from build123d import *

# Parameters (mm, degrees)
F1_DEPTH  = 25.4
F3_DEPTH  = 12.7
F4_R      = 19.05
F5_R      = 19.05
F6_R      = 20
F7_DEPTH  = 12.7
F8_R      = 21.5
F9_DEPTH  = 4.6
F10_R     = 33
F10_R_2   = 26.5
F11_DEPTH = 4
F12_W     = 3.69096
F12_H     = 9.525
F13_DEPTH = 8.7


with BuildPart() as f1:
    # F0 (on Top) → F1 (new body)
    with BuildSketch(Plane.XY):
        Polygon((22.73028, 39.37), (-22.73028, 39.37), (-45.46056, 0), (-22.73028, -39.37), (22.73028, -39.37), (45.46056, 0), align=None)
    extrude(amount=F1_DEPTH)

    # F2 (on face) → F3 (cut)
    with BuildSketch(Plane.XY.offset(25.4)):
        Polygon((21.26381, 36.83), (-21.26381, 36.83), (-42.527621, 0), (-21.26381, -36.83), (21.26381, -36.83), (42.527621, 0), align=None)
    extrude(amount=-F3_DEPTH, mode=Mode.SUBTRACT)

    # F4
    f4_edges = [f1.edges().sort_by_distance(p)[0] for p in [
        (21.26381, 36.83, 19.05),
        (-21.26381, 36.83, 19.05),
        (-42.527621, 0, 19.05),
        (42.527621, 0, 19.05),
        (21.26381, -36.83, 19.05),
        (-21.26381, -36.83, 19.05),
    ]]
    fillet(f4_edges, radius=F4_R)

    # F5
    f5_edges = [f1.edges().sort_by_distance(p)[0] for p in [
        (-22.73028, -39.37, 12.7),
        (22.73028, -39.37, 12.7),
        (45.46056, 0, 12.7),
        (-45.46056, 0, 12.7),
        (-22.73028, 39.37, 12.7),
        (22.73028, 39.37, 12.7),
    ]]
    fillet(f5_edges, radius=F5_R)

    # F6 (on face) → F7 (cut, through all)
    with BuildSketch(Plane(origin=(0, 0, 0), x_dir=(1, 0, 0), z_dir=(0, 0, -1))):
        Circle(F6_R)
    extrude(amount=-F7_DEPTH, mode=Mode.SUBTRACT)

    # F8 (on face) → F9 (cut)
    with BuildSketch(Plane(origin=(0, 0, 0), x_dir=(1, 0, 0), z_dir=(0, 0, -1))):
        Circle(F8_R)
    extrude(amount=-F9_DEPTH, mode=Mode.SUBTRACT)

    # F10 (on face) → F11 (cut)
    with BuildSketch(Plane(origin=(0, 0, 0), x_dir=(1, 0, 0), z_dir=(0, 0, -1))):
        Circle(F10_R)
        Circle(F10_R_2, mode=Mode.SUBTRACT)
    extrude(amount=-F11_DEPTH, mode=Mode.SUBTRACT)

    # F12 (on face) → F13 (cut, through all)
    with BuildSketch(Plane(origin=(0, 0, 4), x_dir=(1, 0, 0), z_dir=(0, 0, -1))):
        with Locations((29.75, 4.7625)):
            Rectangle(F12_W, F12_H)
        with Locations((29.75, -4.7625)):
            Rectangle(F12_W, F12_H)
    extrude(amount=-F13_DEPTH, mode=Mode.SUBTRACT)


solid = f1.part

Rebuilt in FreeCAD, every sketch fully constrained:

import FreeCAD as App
import Part
import Sketcher
from FreeCAD import Vector
Q = App.Units.Quantity


def edges_at(feature, points):
    """Names of the edges that pass closest to the given points."""
    edges = feature.Shape.Edges
    near = lambda p: min(range(len(edges)), key=lambda i: edges[i].distToShape(Part.Vertex(*p))[0])
    return sorted({f"Edge{near(p) + 1}" for p in points})


def add_polygon(sketch, points):
    """Adds a closed chain of lines whose ends are joined by coincident constraints."""
    first, n = sketch.GeometryCount, len(points)
    for a, b in zip(points, points[1:] + points[:1]):
        sketch.addGeometry(Part.LineSegment(App.Vector(*a, 0), App.Vector(*b, 0)), False)
    for i in range(n):
        sketch.addConstraint(Sketcher.Constraint("Coincident", first + i, 2, first + (i + 1) % n, 1))

doc = App.newDocument("Part")
params = doc.addObject("Spreadsheet::Sheet", "Params")
for row, (alias, value) in enumerate([
    ("pad1_length", "25.4 mm"),
    ("pocket1_length", "12.7 mm"),
    ("fillet_radius", "19.05 mm"),
    ("fillet2_radius", "19.05 mm"),
    ("sketch3_diameter", "40 mm"),
    ("sketch4_diameter", "43 mm"),
    ("pocket3_length", "4.6 mm"),
    ("sketch5_diameter", "66 mm"),
    ("sketch5_diameter2", "53 mm"),
    ("pocket4_length", "4 mm"),
    ("sketch6_height", "19.05 mm"),
], start=1):
    params.set(f"A{row}", alias)
    params.set(f"B{row}", "=" + value)
    params.setAlias(f"B{row}", alias)

body = doc.addObject("PartDesign::Body", "Body")

sketch1 = doc.addObject("Sketcher::SketchObject", "Sketch")
body.addObject(sketch1)
sketch1.AttachmentSupport = (doc.XY_Plane, [""])
sketch1.MapMode = "FlatFace"
add_polygon(sketch1, [(23, 39), (-23, 39), (-45, 0), (-23, -39), (23, -39), (45, 0)])
sketch1.addConstraint(Sketcher.Constraint("Horizontal", 0))
sketch1.addConstraint(Sketcher.Constraint("Horizontal", 3))
sketch1.addConstraint(Sketcher.Constraint("Symmetric", 0, 2, 3, 2, -1, 1))
sketch1.addConstraint(Sketcher.Constraint("Symmetric", 1, 2, 4, 2, -1, 1))
sketch1.addConstraint(Sketcher.Constraint("PointOnObject", 1, 2, -1))
sketch1.addConstraint(Sketcher.Constraint("Parallel", 2, 5))
sketch1.addConstraint(Sketcher.Constraint("Vertical", 0, 2, 2, 2))
sketch1.addConstraint(Sketcher.Constraint("Angle", 1, Q("-120 deg")))
sketch1.addConstraint(Sketcher.Constraint("DistanceY", -1, 1, 0, 2, 39.37))
sketch1.addConstraint(Sketcher.Constraint("DistanceX", 0, 2, 0, 1, 45.46056))
pad1 = doc.addObject("PartDesign::Pad", "Pad")
body.addObject(pad1)
pad1.Profile = sketch1
pad1.setExpression("Length", "Params.pad1_length")

sketch2 = doc.addObject("Sketcher::SketchObject", "Sketch001")
body.addObject(sketch2)
sketch2.AttachmentSupport = (doc.XY_Plane, [""])
sketch2.MapMode = "FlatFace"
sketch2.AttachmentOffset = App.Placement(Vector(0, 0, 25.4), App.Rotation())
add_polygon(sketch2, [(21, 37), (-21, 37), (-43, 0), (-21, -37), (21, -37), (43, 0)])
sketch2.addConstraint(Sketcher.Constraint("Horizontal", 0))
sketch2.addConstraint(Sketcher.Constraint("Horizontal", 3))
sketch2.addConstraint(Sketcher.Constraint("Symmetric", 0, 2, 3, 2, -1, 1))
sketch2.addConstraint(Sketcher.Constraint("Symmetric", 1, 2, 4, 2, -1, 1))
sketch2.addConstraint(Sketcher.Constraint("PointOnObject", 1, 2, -1))
sketch2.addConstraint(Sketcher.Constraint("Parallel", 2, 5))
sketch2.addConstraint(Sketcher.Constraint("Vertical", 0, 2, 2, 2))
sketch2.addConstraint(Sketcher.Constraint("Angle", 1, Q("-120.000001 deg")))
sketch2.addConstraint(Sketcher.Constraint("DistanceY", -1, 1, 0, 2, 36.83))
sketch2.addConstraint(Sketcher.Constraint("DistanceX", 0, 2, 0, 1, 42.52762))
pocket1 = doc.addObject("PartDesign::Pocket", "Pocket")
body.addObject(pocket1)
pocket1.Profile = sketch2
pocket1.setExpression("Length", "Params.pocket1_length")
doc.recompute()

fillet = doc.addObject("PartDesign::Fillet", "Fillet")
body.addObject(fillet)
fillet.Base = (pocket1, edges_at(pocket1, [
    (21.264, 36.83, 19.05),
    (-21.264, 36.83, 19.05),
    (-42.528, 0, 19.05),
    (42.528, 0, 19.05),
    (21.264, -36.83, 19.05),
    (-21.264, -36.83, 19.05),
]))
fillet.setExpression("Radius", "Params.fillet_radius")
doc.recompute()

fillet2 = doc.addObject("PartDesign::Fillet", "Fillet001")
body.addObject(fillet2)
fillet2.Base = (fillet, edges_at(fillet, [
    (-22.73, -39.37, 12.7),
    (22.73, -39.37, 12.7),
    (45.461, 0, 12.7),
    (-45.461, 0, 12.7),
    (-22.73, 39.37, 12.7),
    (22.73, 39.37, 12.7),
]))
fillet2.setExpression("Radius", "Params.fillet2_radius")

sketch3 = doc.addObject("Sketcher::SketchObject", "Sketch002")
body.addObject(sketch3)
sketch3.AttachmentSupport = (doc.XY_Plane, [""])
sketch3.MapMode = "FlatFace"
sketch3.addGeometry(Part.Circle(Vector(0, 0, 0), Vector(0, 0, 1), 20), False)
sketch3.addConstraint(Sketcher.Constraint("Coincident", 0, 3, -1, 1))
sketch3.addConstraint(Sketcher.Constraint("Diameter", 0, 40.0))
sketch3.setExpression("Constraints[1]", "Params.sketch3_diameter")
pocket2 = doc.addObject("PartDesign::Pocket", "Pocket001")
body.addObject(pocket2)
pocket2.Profile = sketch3
pocket2.Type = "ThroughAll"
pocket2.Reversed = True

sketch4 = doc.addObject("Sketcher::SketchObject", "Sketch003")
body.addObject(sketch4)
sketch4.AttachmentSupport = (doc.XY_Plane, [""])
sketch4.MapMode = "FlatFace"
sketch4.addGeometry(Part.Circle(Vector(0, 0, 0), Vector(0, 0, 1), 22), False)
sketch4.addConstraint(Sketcher.Constraint("Coincident", 0, 3, -1, 1))
sketch4.addConstraint(Sketcher.Constraint("Diameter", 0, 43.0))
sketch4.setExpression("Constraints[1]", "Params.sketch4_diameter")
pocket3 = doc.addObject("PartDesign::Pocket", "Pocket002")
body.addObject(pocket3)
pocket3.Profile = sketch4
pocket3.setExpression("Length", "Params.pocket3_length")
pocket3.Reversed = True

sketch5 = doc.addObject("Sketcher::SketchObject", "Sketch004")
body.addObject(sketch5)
sketch5.AttachmentSupport = (doc.XY_Plane, [""])
sketch5.MapMode = "FlatFace"
sketch5.addGeometry(Part.Circle(Vector(0, 0, 0), Vector(0, 0, 1), 33), False)
sketch5.addGeometry(Part.Circle(Vector(0, 0, 0), Vector(0, 0, 1), 26), False)
sketch5.addConstraint(Sketcher.Constraint("Coincident", 0, 3, -1, 1))
sketch5.addConstraint(Sketcher.Constraint("Coincident", 1, 3, -1, 1))
sketch5.addConstraint(Sketcher.Constraint("Diameter", 0, 66.0))
sketch5.addConstraint(Sketcher.Constraint("Diameter", 1, 53.0))
sketch5.setExpression("Constraints[2]", "Params.sketch5_diameter")
sketch5.setExpression("Constraints[3]", "Params.sketch5_diameter2")
pocket4 = doc.addObject("PartDesign::Pocket", "Pocket003")
body.addObject(pocket4)
pocket4.Profile = sketch5
pocket4.setExpression("Length", "Params.pocket4_length")
pocket4.Reversed = True

sketch6 = doc.addObject("Sketcher::SketchObject", "Sketch005")
body.addObject(sketch6)
sketch6.AttachmentSupport = (doc.XY_Plane, [""])
sketch6.MapMode = "FlatFace"
sketch6.AttachmentOffset = App.Placement(Vector(0, 0, 4), App.Rotation())
add_polygon(sketch6, [(27.9, -9.5), (27.9, 9.5), (31.6, 9.5), (31.6, -9.5)])
sketch6.addConstraint(Sketcher.Constraint("Vertical", 0))
sketch6.addConstraint(Sketcher.Constraint("Horizontal", 1))
sketch6.addConstraint(Sketcher.Constraint("Vertical", 2))
sketch6.addConstraint(Sketcher.Constraint("Horizontal", 3))
sketch6.addConstraint(Sketcher.Constraint("DistanceY", 0, 1, 0, 2, 19.05))
sketch6.addConstraint(Sketcher.Constraint("DistanceY", -1, 1, 0, 2, 9.525))
sketch6.addConstraint(Sketcher.Constraint("DistanceX", 1, 1, 1, 2, 3.69096))
sketch6.addConstraint(Sketcher.Constraint("DistanceX", -1, 1, 0, 2, 27.90452))
sketch6.setExpression("Constraints[8]", "Params.sketch6_height")
pocket5 = doc.addObject("PartDesign::Pocket", "Pocket004")
body.addObject(pocket5)
pocket5.Profile = sketch6
pocket5.Type = "ThroughAll"
pocket5.Reversed = True

doc.recompute()
